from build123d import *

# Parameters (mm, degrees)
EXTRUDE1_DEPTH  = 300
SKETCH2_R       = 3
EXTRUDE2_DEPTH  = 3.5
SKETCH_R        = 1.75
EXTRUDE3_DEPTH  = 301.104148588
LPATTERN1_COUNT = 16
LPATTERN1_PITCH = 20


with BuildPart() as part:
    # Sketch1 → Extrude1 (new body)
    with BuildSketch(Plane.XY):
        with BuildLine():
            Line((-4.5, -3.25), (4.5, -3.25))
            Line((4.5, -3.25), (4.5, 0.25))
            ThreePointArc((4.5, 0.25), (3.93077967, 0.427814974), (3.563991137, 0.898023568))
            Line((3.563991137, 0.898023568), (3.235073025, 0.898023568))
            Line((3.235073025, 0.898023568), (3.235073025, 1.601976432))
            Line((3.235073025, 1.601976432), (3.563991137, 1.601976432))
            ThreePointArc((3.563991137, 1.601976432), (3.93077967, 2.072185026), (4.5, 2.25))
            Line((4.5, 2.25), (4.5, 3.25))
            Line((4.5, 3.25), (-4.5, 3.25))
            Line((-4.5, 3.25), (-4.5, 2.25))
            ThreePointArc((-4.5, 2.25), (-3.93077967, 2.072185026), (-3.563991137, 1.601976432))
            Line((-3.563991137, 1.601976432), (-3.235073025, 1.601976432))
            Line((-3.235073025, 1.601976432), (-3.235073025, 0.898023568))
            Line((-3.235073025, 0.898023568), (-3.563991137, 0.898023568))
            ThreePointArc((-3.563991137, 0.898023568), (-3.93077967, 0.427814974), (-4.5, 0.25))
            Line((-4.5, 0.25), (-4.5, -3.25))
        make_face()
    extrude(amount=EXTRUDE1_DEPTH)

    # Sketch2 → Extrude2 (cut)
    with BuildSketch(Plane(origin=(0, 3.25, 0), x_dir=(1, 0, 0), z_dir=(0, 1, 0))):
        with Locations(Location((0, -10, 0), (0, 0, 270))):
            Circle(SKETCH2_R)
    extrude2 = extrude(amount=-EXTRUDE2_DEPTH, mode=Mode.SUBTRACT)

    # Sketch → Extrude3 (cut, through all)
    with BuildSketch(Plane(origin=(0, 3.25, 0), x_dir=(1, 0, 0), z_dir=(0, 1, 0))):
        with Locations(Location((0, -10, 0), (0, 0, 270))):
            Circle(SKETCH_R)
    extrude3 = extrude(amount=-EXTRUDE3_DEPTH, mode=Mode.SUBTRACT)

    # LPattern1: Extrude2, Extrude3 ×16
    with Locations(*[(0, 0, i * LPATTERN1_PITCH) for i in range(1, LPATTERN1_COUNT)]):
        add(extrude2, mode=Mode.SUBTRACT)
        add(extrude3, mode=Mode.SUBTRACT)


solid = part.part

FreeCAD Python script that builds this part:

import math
import FreeCAD as App
import Part
import Sketcher

doc = App.newDocument("Part")
body = doc.addObject("PartDesign::Body", "Body")

sketch1 = body.newObject("Sketcher::SketchObject", "Sketch")
sketch1.AttachmentSupport = (doc.getObject("XY_Plane"), [""])
sketch1.MapMode = "FlatFace"
sketch1.addGeometry([
    Part.LineSegment(App.Vector(-4.5, -3.25, 0), App.Vector(4.5, -3.25, 0)),
    Part.LineSegment(App.Vector(4.5, -3.25, 0), App.Vector(4.5, 0.25, 0)),
    Part.ArcOfCircle(Part.Circle(App.Vector(4.5, 1.25, 0), App.Vector(0, 0, 1), 1), math.radians(-159), math.radians(-90)),
    Part.LineSegment(App.Vector(3.56, 0.9, 0), App.Vector(3.24, 0.9, 0)),
    Part.LineSegment(App.Vector(3.24, 0.9, 0), App.Vector(3.24, 1.6, 0)),
    Part.LineSegment(App.Vector(3.24, 1.6, 0), App.Vector(3.56, 1.6, 0)),
    Part.ArcOfCircle(Part.Circle(App.Vector(4.5, 1.25, 0), App.Vector(0, 0, 1), 1), math.radians(90), math.radians(159)),
    Part.LineSegment(App.Vector(4.5, 2.25, 0), App.Vector(4.5, 3.25, 0)),
    Part.LineSegment(App.Vector(4.5, 3.25, 0), App.Vector(-4.5, 3.25, 0)),
    Part.LineSegment(App.Vector(-4.5, 3.25, 0), App.Vector(-4.5, 2.25, 0)),
    Part.ArcOfCircle(Part.Circle(App.Vector(-4.5, 1.25, 0), App.Vector(0, 0, 1), 1), math.radians(21), math.radians(90)),
    Part.LineSegment(App.Vector(-3.56, 1.6, 0), App.Vector(-3.24, 1.6, 0)),
    Part.LineSegment(App.Vector(-3.24, 1.6, 0), App.Vector(-3.24, 0.9, 0)),
    Part.LineSegment(App.Vector(-3.24, 0.9, 0), App.Vector(-3.56, 0.9, 0)),
    Part.ArcOfCircle(Part.Circle(App.Vector(-4.5, 1.25, 0), App.Vector(0, 0, 1), 1), math.radians(-90), math.radians(-21)),
    Part.LineSegment(App.Vector(-4.5, 0.25, 0), App.Vector(-4.5, -3.25, 0)),
], False)
sketch1.addConstraint([
    Sketcher.Constraint("Coincident", 0, 2, 1, 1),
    Sketcher.Constraint("Coincident", 1, 2, 2, 2),
    Sketcher.Constraint("Coincident", 2, 1, 3, 1),
    Sketcher.Constraint("Coincident", 3, 2, 4, 1),
    Sketcher.Constraint("Coincident", 4, 2, 5, 1),
    Sketcher.Constraint("Coincident", 5, 2, 6, 2),
    Sketcher.Constraint("Coincident", 6, 1, 7, 1),
    Sketcher.Constraint("Coincident", 7, 2, 8, 1),
    Sketcher.Constraint("Coincident", 8, 2, 9, 1),
    Sketcher.Constraint("Coincident", 9, 2, 10, 2),
    Sketcher.Constraint("Coincident", 10, 1, 11, 1),
    Sketcher.Constraint("Coincident", 11, 2, 12, 1),
    Sketcher.Constraint("Coincident", 12, 2, 13, 1),
    Sketcher.Constraint("Coincident", 13, 2, 14, 2),
    Sketcher.Constraint("Coincident", 14, 1, 15, 1),
    Sketcher.Constraint("Coincident", 15, 2, 0, 1),
    Sketcher.Constraint("Horizontal", 0),
    Sketcher.Constraint("Vertical", 1),
    Sketcher.Constraint("Horizontal", 3),
    Sketcher.Constraint("Vertical", 4),
    Sketcher.Constraint("Horizontal", 5),
    Sketcher.Constraint("Vertical", 7),
    Sketcher.Constraint("Horizontal", 8),
    Sketcher.Constraint("Vertical", 9),
    Sketcher.Constraint("Horizontal", 11),
    Sketcher.Constraint("Vertical", 12),
    Sketcher.Constraint("Horizontal", 13),
    Sketcher.Constraint("Vertical", 15),
    Sketcher.Constraint("Coincident", 6, 3, 2, 3),
    Sketcher.Constraint("Coincident", 14, 3, 10, 3),
    Sketcher.Constraint("Equal", 2, 6),
    Sketcher.Constraint("Equal", 6, 10),
    Sketcher.Constraint("Equal", 10, 14),
    Sketcher.Constraint("Symmetric", 0, 2, 8, 2, -1, 1),
    Sketcher.Constraint("Symmetric", 2, 3, 10, 3, -2),
    Sketcher.Constraint("Symmetric", 4, 2, 11, 2, -2),
    Sketcher.Constraint("Horizontal", 3, 2, 12, 2),
    Sketcher.Constraint("Vertical", 6, 3, 0, 2),
    Sketcher.Constraint("Vertical", 2, 1, 5, 2),
    Sketcher.Constraint("Vertical", 1, 2, 6, 1),
    Sketcher.Constraint("Vertical", 9, 2, 14, 1),
    Sketcher.Constraint("Radius", 2, 1.0),
    Sketcher.Constraint("DistanceX", 0, 1, 0, 2, 9.0),
    Sketcher.Constraint("DistanceY", 7, 1, 7, 2, 1.0),
    Sketcher.Constraint("DistanceY", 1, 1, 1, 2, 3.5),
    Sketcher.Constraint("DistanceX", 3, 2, 3, 1, 0.328918),
    Sketcher.Constraint("DistanceY", 4, 1, 4, 2, 0.703953),
])
pad1 = body.newObject("PartDesign::Pad", "Pad")
pad1.Profile = sketch1
pad1.Length = 300

sketch2 = body.newObject("Sketcher::SketchObject", "Sketch001")
sketch2.AttachmentSupport = (doc.getObject("XZ_Plane"), [""])
sketch2.MapMode = "FlatFace"
sketch2.AttachmentOffset = App.Placement(App.Vector(0, 0, -3.25), App.Rotation())
sketch2.addGeometry(Part.Circle(App.Vector(0, 10, 0), App.Vector(0, 0, 1), 3), False)
sketch2.addConstraint([
    Sketcher.Constraint("PointOnObject", 0, 3, -2),
    Sketcher.Constraint("Diameter", 0, 6.0),
    Sketcher.Constraint("DistanceY", -1, 1, 0, 3, 10.0),
])
pocket1 = body.newObject("PartDesign::Pocket", "Pocket")
pocket1.Profile = sketch2
pocket1.Length = 3.5
pocket1.Reversed = True

sketch3 = body.newObject("Sketcher::SketchObject", "Sketch002")
sketch3.AttachmentSupport = (doc.getObject("XZ_Plane"), [""])
sketch3.MapMode = "FlatFace"
sketch3.AttachmentOffset = App.Placement(App.Vector(0, 0, -3.25), App.Rotation())
sketch3.addGeometry(Part.Circle(App.Vector(0, 10, 0), App.Vector(0, 0, 1), 1.8), False)
sketch3.addConstraint([
    Sketcher.Constraint("PointOnObject", 0, 3, -2),
    Sketcher.Constraint("Diameter", 0, 3.5),
    Sketcher.Constraint("DistanceY", -1, 1, 0, 3, 10.0),
])
pocket2 = body.newObject("PartDesign::Pocket", "Pocket001")
pocket2.Profile = sketch3
pocket2.Type = "ThroughAll"
pocket2.Reversed = True
doc.recompute()

linearpattern = body.newObject("PartDesign::LinearPattern", "LinearPattern")
linearpattern.Originals = [pocket1, pocket2]
linearpattern.Direction = (doc.getObject("Z_Axis"), [""])
linearpattern.Mode = "offset"
linearpattern.Offset = 20
linearpattern.Occurrences = 16
body.Tip = linearpattern

doc.recompute()
